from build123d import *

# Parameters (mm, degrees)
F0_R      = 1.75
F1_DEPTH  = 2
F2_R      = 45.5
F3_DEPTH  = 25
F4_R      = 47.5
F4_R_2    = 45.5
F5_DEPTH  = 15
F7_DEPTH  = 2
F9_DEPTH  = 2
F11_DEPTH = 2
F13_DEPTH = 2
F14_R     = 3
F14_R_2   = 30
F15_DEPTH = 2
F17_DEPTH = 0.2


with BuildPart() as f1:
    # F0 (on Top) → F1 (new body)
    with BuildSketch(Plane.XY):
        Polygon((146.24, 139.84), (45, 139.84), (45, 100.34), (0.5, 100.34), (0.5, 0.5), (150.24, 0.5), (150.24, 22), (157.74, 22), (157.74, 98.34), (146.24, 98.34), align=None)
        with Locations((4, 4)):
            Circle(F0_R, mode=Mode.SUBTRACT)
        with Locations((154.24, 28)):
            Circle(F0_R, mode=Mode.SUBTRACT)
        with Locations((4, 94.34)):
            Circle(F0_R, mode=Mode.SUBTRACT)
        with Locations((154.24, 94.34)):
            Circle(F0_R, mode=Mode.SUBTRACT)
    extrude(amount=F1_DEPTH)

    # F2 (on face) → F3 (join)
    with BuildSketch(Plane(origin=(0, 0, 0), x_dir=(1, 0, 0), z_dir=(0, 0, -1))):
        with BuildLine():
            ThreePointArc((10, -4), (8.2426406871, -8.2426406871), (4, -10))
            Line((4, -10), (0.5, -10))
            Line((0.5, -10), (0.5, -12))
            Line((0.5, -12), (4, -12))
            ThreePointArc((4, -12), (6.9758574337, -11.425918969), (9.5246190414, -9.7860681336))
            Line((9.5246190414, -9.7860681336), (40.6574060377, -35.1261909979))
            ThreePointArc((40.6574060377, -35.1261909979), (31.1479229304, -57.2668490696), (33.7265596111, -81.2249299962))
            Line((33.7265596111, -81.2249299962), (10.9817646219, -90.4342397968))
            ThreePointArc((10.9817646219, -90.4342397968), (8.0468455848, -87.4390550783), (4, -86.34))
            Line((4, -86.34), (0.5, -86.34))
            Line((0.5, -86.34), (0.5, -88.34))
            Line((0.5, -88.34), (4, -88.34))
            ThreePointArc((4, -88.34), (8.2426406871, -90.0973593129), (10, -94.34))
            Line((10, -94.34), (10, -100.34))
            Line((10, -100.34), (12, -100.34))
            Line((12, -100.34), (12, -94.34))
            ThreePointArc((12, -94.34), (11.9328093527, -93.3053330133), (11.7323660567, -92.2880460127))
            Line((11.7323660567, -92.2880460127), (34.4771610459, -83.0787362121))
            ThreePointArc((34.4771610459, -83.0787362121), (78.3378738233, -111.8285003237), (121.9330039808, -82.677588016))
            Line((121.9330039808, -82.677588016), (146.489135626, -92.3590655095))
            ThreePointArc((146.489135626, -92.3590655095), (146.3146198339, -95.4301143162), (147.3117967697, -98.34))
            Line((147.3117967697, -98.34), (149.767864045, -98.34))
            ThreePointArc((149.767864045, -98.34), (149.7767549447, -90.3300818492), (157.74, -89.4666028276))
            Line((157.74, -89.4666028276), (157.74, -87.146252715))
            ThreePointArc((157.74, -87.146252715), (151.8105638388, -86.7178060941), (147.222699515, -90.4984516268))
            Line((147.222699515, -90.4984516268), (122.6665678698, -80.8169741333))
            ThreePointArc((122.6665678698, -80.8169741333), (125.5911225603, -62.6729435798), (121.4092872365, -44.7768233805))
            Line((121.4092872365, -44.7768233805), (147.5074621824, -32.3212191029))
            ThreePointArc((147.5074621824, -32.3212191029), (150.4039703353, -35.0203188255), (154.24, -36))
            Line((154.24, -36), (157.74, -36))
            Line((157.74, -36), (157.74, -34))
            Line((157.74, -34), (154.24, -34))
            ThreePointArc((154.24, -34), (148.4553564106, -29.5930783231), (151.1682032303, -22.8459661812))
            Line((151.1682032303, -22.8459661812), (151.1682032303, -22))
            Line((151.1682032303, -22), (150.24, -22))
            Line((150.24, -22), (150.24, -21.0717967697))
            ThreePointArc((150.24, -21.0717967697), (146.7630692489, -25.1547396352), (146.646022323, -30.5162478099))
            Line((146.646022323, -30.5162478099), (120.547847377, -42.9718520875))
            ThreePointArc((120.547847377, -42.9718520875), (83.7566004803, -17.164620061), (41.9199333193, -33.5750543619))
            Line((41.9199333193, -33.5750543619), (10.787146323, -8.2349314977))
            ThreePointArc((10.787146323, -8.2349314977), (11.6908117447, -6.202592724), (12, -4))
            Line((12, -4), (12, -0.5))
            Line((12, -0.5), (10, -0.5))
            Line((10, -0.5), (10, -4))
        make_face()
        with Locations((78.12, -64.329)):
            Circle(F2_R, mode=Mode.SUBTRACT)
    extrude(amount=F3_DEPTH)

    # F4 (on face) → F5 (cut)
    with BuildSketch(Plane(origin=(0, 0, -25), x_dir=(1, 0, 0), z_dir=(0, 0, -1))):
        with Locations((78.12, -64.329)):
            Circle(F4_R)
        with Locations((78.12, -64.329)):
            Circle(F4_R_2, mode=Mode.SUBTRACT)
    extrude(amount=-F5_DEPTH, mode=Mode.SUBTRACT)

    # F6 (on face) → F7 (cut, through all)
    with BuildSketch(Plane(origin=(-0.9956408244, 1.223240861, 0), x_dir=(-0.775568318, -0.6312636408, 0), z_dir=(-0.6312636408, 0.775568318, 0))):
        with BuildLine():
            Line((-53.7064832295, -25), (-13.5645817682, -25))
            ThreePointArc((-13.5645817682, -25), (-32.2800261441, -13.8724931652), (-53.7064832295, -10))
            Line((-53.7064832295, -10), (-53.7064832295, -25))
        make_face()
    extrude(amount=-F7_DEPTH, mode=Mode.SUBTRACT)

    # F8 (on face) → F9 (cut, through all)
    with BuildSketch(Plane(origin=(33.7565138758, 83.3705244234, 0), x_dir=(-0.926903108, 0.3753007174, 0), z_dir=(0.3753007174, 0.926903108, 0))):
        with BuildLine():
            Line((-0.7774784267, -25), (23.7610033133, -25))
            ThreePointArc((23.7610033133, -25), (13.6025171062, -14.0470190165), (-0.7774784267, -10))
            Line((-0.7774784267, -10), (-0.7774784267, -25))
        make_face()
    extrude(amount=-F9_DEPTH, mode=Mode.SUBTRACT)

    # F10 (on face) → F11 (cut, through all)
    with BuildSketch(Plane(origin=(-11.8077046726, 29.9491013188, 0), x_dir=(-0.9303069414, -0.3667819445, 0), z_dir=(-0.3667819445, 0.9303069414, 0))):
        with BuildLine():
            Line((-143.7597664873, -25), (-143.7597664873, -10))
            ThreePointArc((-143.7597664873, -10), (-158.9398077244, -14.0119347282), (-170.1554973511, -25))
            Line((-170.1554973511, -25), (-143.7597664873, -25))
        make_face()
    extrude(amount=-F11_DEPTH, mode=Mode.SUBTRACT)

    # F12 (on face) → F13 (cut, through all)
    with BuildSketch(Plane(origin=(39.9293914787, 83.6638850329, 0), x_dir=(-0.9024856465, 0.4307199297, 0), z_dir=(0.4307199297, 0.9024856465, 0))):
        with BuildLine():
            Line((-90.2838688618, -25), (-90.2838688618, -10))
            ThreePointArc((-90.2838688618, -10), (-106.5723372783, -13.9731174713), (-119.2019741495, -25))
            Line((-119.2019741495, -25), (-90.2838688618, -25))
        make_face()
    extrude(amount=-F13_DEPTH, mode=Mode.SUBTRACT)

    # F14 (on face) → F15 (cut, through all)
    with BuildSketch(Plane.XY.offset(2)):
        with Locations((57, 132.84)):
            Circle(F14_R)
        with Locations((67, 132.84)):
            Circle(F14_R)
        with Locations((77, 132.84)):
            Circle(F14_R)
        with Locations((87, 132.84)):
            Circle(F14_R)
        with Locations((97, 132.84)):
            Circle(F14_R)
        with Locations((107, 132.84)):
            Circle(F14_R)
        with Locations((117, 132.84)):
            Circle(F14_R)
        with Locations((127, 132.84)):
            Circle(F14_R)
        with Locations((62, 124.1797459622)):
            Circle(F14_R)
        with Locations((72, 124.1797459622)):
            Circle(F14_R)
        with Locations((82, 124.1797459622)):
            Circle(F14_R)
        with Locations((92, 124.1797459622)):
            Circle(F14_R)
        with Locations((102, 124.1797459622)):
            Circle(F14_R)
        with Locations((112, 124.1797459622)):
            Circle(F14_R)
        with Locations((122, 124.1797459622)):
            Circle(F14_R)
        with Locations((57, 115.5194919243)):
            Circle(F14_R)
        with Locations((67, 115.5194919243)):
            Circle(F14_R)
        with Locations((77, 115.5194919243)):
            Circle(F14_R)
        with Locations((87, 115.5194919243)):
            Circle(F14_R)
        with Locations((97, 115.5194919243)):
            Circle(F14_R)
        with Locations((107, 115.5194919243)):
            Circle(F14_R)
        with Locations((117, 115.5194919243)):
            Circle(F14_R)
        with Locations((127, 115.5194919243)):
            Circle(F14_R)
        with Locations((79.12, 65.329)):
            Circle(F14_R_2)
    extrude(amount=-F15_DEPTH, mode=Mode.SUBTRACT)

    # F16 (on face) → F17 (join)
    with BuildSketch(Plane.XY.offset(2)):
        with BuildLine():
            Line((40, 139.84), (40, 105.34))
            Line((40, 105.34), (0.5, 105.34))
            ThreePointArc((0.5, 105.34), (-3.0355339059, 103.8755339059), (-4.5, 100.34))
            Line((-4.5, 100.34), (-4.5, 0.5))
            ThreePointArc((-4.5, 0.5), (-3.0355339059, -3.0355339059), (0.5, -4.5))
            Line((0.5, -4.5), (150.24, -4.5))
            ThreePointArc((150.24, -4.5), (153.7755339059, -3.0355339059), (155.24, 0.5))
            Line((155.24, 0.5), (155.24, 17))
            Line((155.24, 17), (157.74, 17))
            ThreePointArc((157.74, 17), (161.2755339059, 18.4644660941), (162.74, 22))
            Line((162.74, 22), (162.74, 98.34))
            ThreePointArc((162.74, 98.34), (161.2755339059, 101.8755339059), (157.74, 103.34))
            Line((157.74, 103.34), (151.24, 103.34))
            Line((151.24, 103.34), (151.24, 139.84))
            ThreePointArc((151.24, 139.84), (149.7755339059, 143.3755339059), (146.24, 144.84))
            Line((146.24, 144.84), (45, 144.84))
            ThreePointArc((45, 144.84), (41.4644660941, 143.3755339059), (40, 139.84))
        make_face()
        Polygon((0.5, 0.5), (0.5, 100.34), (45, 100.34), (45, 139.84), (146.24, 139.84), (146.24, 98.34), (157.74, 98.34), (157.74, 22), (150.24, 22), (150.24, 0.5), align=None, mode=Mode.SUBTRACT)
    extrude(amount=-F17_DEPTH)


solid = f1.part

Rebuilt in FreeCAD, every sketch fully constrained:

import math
import FreeCAD as App
import Part
import Sketcher

V = App.Vector


def add_polygon(sketch, points):
    """Adds a closed chain of lines whose ends are joined by coincident constraints."""
    first, n = sketch.GeometryCount, len(points)
    for a, b in zip(points, points[1:] + points[:1]):
        sketch.addGeometry(Part.LineSegment(App.Vector(*a, 0), App.Vector(*b, 0)), False)
    for i in range(n):
        sketch.addConstraint(Sketcher.Constraint("Coincident", first + i, 2, first + (i + 1) % n, 1))

doc = App.newDocument("Part")
body = doc.addObject("PartDesign::Body", "Body")

# Sketch on XY plane
sketch1 = doc.addObject("Sketcher::SketchObject", "Sketch")
body.addObject(sketch1)
sketch1.AttachmentSupport = (doc.XY_Plane, [""])
sketch1.MapMode = "FlatFace"
add_polygon(sketch1, [(146.24, 139.84), (45, 139.84), (45, 100.34), (0.5, 100.34), (0.5, 0.5), (150.24, 0.5), (150.24, 22), (157.74, 22), (157.74, 98.34), (146.24, 98.34)])  # lines 0-9
sketch1.addGeometry(Part.Circle(V(4, 4, 0), V(0, 0, 1), 1.75), False)  # 10
sketch1.addGeometry(Part.Circle(V(154.24, 28, 0), V(0, 0, 1), 1.75), False)  # 11
sketch1.addGeometry(Part.Circle(V(4, 94.34, 0), V(0, 0, 1), 1.75), False)  # 12
sketch1.addGeometry(Part.Circle(V(154.24, 94.34, 0), V(0, 0, 1), 1.75), False)  # 13
sketch1.addConstraint(Sketcher.Constraint("Horizontal", 0))
sketch1.addConstraint(Sketcher.Constraint("Vertical", 1))
sketch1.addConstraint(Sketcher.Constraint("Horizontal", 2))
sketch1.addConstraint(Sketcher.Constraint("Vertical", 3))
sketch1.addConstraint(Sketcher.Constraint("Horizontal", 4))
sketch1.addConstraint(Sketcher.Constraint("Vertical", 5))
sketch1.addConstraint(Sketcher.Constraint("Horizontal", 6))
sketch1.addConstraint(Sketcher.Constraint("Vertical", 7))
sketch1.addConstraint(Sketcher.Constraint("Horizontal", 8))
sketch1.addConstraint(Sketcher.Constraint("Vertical", 9))
sketch1.addConstraint(Sketcher.Constraint("Equal", 10, 11))
sketch1.addConstraint(Sketcher.Constraint("Equal", 11, 12))
sketch1.addConstraint(Sketcher.Constraint("Equal", 12, 13))
sketch1.addConstraint(Sketcher.Constraint("Horizontal", 12, 3, 13, 3))
sketch1.addConstraint(Sketcher.Constraint("Vertical", 10, 3, 12, 3))
sketch1.addConstraint(Sketcher.Constraint("Vertical", 11, 3, 13, 3))
sketch1.addConstraint(Sketcher.Constraint("Diameter", 10, 3.5))
sketch1.addConstraint(Sketcher.Constraint("DistanceX", 2, 2, 2, 1, 44.5))
sketch1.addConstraint(Sketcher.Constraint("DistanceX", 6, 1, 6, 2, 7.5))
sketch1.addConstraint(Sketcher.Constraint("DistanceX", 8, 2, 8, 1, 11.5))
sketch1.addConstraint(Sketcher.Constraint("DistanceY", 1, 2, 1, 1, 39.5))
sketch1.addConstraint(Sketcher.Constraint("DistanceY", 5, 1, 5, 2, 21.5))
sketch1.addConstraint(Sketcher.Constraint("DistanceY", 9, 1, 9, 2, 41.5))
sketch1.addConstraint(Sketcher.Constraint("DistanceX", -1, 1, 10, 3, 4.0))
sketch1.addConstraint(Sketcher.Constraint("DistanceY", -1, 1, 10, 3, 4.0))
sketch1.addConstraint(Sketcher.Constraint("DistanceY", -1, 1, 11, 3, 28.0))
sketch1.addConstraint(Sketcher.Constraint("DistanceX", -1, 1, 0, 2, 45.0))
sketch1.addConstraint(Sketcher.Constraint("DistanceY", -1, 1, 5, 2, 22.0))
sketch1.addConstraint(Sketcher.Constraint("DistanceY", 12, 3, 1, 2, 6.0))
sketch1.addConstraint(Sketcher.Constraint("DistanceX", 4, 2, 11, 3, 4.0))
sketch1.addConstraint(Sketcher.Constraint("DistanceX", 0, 2, 0, 1, 101.24))
sketch1.addConstraint(Sketcher.Constraint("DistanceY", 3, 2, 3, 1, 99.84))
pad1 = doc.addObject("PartDesign::Pad", "Pad")
body.addObject(pad1)
pad1.Profile = sketch1
pad1.Length = 2

# Sketch on XY plane
sketch2 = doc.addObject("Sketcher::SketchObject", "Sketch001")
body.addObject(sketch2)
sketch2.AttachmentSupport = (doc.XY_Plane, [""])
sketch2.MapMode = "FlatFace"
sketch2.addGeometry(Part.ArcOfCircle(Part.Circle(V(4, 4, 0), V(0, 0, 1), 6), math.radians(0), math.radians(90)), False)
sketch2.addGeometry(Part.LineSegment(V(4, 10, 0), V(0.5, 10, 0)), False)
sketch2.addGeometry(Part.LineSegment(V(0.5, 10, 0), V(0.5, 12, 0)), False)
sketch2.addGeometry(Part.LineSegment(V(0.5, 12, 0), V(4, 12, 0)), False)
sketch2.addGeometry(Part.ArcOfCircle(Part.Circle(V(4, 4, 0), V(0, 0, 1), 8), math.radians(46.324169), math.radians(90)), False)
sketch2.addGeometry(Part.LineSegment(V(9.524619, 9.786068, 0), V(40.657406, 35.126191, 0)), False)
sketch2.addGeometry(Part.ArcOfCircle(Part.Circle(V(78.12, 64.329, 0), V(0, 0, 1), 47.5), math.radians(159.163416), math.radians(217.937097)), False)
sketch2.addGeometry(Part.LineSegment(V(33.72656, 81.22493, 0), V(10.981765, 90.43424, 0)), False)
sketch2.addGeometry(Part.ArcOfCircle(Part.Circle(V(4, 94.34, 0), V(0, 0, 1), 8), math.radians(-90), math.radians(-29.223656)), False)
sketch2.addGeometry(Part.LineSegment(V(4, 86.34, 0), V(0.5, 86.34, 0)), False)
sketch2.addGeometry(Part.LineSegment(V(0.5, 86.34, 0), V(0.5, 88.34, 0)), False)
sketch2.addGeometry(Part.LineSegment(V(0.5, 88.34, 0), V(4, 88.34, 0)), False)
sketch2.addGeometry(Part.ArcOfCircle(Part.Circle(V(4, 94.34, 0), V(0, 0, 1), 6), math.radians(-90), math.radians(0)), False)
sketch2.addGeometry(Part.LineSegment(V(10, 94.34, 0), V(10, 100.34, 0)), False)
sketch2.addGeometry(Part.LineSegment(V(10, 100.34, 0), V(12, 100.34, 0)), False)
sketch2.addGeometry(Part.LineSegment(V(12, 100.34, 0), V(12, 94.34, 0)), False)
sketch2.addGeometry(Part.ArcOfCircle(Part.Circle(V(4, 94.34, 0), V(0, 0, 1), 8), math.radians(-14.862144), math.radians(0)), False)
sketch2.addGeometry(Part.LineSegment(V(11.732366, 92.288046, 0), V(34.477161, 83.078736, 0)), False)
sketch2.addGeometry(Part.ArcOfCircle(Part.Circle(V(78.12, 64.329, 0), V(0, 0, 1), 47.5), math.radians(22.723604), math.radians(156.750784)), False)
sketch2.addGeometry(Part.LineSegment(V(121.933004, 82.677588, 0), V(146.489136, 92.359066, 0)), False)
sketch2.addGeometry(Part.ArcOfCircle(Part.Circle(V(154.24, 94.34, 0), V(0, 0, 1), 8), math.radians(150), math.radians(194.336532)), False)
sketch2.addGeometry(Part.LineSegment(V(147.311797, 98.34, 0), V(149.767864, 98.34, 0)), False)
sketch2.addGeometry(Part.ArcOfCircle(Part.Circle(V(154.24, 94.34, 0), V(0, 0, 1), 6), math.radians(138.189685), math.radians(305.685335)), False)
sketch2.addGeometry(Part.LineSegment(V(157.74, 89.466603, 0), V(157.74, 87.146253, 0)), False)
sketch2.addGeometry(Part.ArcOfCircle(Part.Circle(V(154.24, 94.34, 0), V(0, 0, 1), 8), math.radians(-151.301956), math.radians(-64.05552)), False)
sketch2.addGeometry(Part.LineSegment(V(147.2227, 90.498452, 0), V(122.666568, 80.816974, 0)), False)
sketch2.addGeometry(Part.ArcOfCircle(Part.Circle(V(78.12, 64.329, 0), V(0, 0, 1), 47.5), math.radians(-24.306941), math.radians(20.310972)), False)
sketch2.addGeometry(Part.LineSegment(V(121.409287, 44.776823, 0), V(147.507462, 32.321219, 0)), False)
sketch2.addGeometry(Part.ArcOfCircle(Part.Circle(V(154.24, 28, 0), V(0, 0, 1), 8), math.radians(90), math.radians(147.305987)), False)
sketch2.addGeometry(Part.LineSegment(V(154.24, 36, 0), V(157.74, 36, 0)), False)
sketch2.addGeometry(Part.LineSegment(V(157.74, 36, 0), V(157.74, 34, 0)), False)
sketch2.addGeometry(Part.LineSegment(V(157.74, 34, 0), V(154.24, 34, 0)), False)
sketch2.addGeometry(Part.ArcOfCircle(Part.Circle(V(154.24, 28, 0), V(0, 0, 1), 6), math.radians(90), math.radians(239.205118)), False)
sketch2.addGeometry(Part.LineSegment(V(151.168203, 22.845966, 0), V(151.168203, 22, 0)), False)
sketch2.addGeometry(Part.LineSegment(V(151.168203, 22, 0), V(150.24, 22, 0)), False)
sketch2.addGeometry(Part.LineSegment(V(150.24, 22, 0), V(150.24, 21.071797, 0)), False)
sketch2.addGeometry(Part.ArcOfCircle(Part.Circle(V(154.24, 28, 0), V(0, 0, 1), 8), math.radians(161.667498), math.radians(240)), False)
sketch2.addGeometry(Part.LineSegment(V(146.646022, 30.516248, 0), V(120.547847, 42.971852, 0)), False)
sketch2.addGeometry(Part.ArcOfCircle(Part.Circle(V(78.12, 64.329, 0), V(0, 0, 1), 47.5), math.radians(-139.650271), math.radians(-26.719573)), False)
sketch2.addGeometry(Part.LineSegment(V(41.919933, 33.575054, 0), V(10.787146, 8.234931, 0)), False)
sketch2.addGeometry(Part.ArcOfCircle(Part.Circle(V(4, 4, 0), V(0, 0, 1), 8), math.radians(0), math.radians(31.962658)), False)
sketch2.addGeometry(Part.LineSegment(V(12, 4, 0), V(12, 0.5, 0)), False)
sketch2.addGeometry(Part.LineSegment(V(12, 0.5, 0), V(10, 0.5, 0)), False)
sketch2.addGeometry(Part.LineSegment(V(10, 0.5, 0), V(10, 4, 0)), False)
sketch2.addGeometry(Part.Circle(V(78.12, 64.329, 0), V(0, 0, 1), 45.5), False)
sketch2.addConstraint(Sketcher.Constraint("Coincident", 0, 2, 1, 1))
sketch2.addConstraint(Sketcher.Constraint("Coincident", 1, 2, 2, 1))
sketch2.addConstraint(Sketcher.Constraint("Coincident", 2, 2, 3, 1))
sketch2.addConstraint(Sketcher.Constraint("Coincident", 3, 2, 4, 2))
sketch2.addConstraint(Sketcher.Constraint("Coincident", 4, 1, 5, 1))
sketch2.addConstraint(Sketcher.Constraint("Coincident", 5, 2, 6, 2))
sketch2.addConstraint(Sketcher.Constraint("Coincident", 6, 1, 7, 1))
sketch2.addConstraint(Sketcher.Constraint("Coincident", 7, 2, 8, 2))
sketch2.addConstraint(Sketcher.Constraint("Coincident", 8, 1, 9, 1))
sketch2.addConstraint(Sketcher.Constraint("Coincident", 9, 2, 10, 1))
sketch2.addConstraint(Sketcher.Constraint("Coincident", 10, 2, 11, 1))
sketch2.addConstraint(Sketcher.Constraint("Coincident", 11, 2, 12, 1))
sketch2.addConstraint(Sketcher.Constraint("Coincident", 12, 2, 13, 1))
sketch2.addConstraint(Sketcher.Constraint("Coincident", 13, 2, 14, 1))
sketch2.addConstraint(Sketcher.Constraint("Coincident", 14, 2, 15, 1))
sketch2.addConstraint(Sketcher.Constraint("Coincident", 15, 2, 16, 2))
sketch2.addConstraint(Sketcher.Constraint("Coincident", 16, 1, 17, 1))
sketch2.addConstraint(Sketcher.Constraint("Coincident", 17, 2, 18, 2))
sketch2.addConstraint(Sketcher.Constraint("Coincident", 18, 1, 19, 1))
sketch2.addConstraint(Sketcher.Constraint("Coincident", 19, 2, 20, 2))
sketch2.addConstraint(Sketcher.Constraint("Coincident", 20, 1, 21, 1))
sketch2.addConstraint(Sketcher.Constraint("Coincident", 21, 2, 22, 1))
sketch2.addConstraint(Sketcher.Constraint("Coincident", 22, 2, 23, 1))
sketch2.addConstraint(Sketcher.Constraint("Coincident", 23, 2, 24, 2))
sketch2.addConstraint(Sketcher.Constraint("Coincident", 24, 1, 25, 1))
sketch2.addConstraint(Sketcher.Constraint("Coincident", 25, 2, 26, 2))
sketch2.addConstraint(Sketcher.Constraint("Coincident", 26, 1, 27, 1))
sketch2.addConstraint(Sketcher.Constraint("Coincident", 27, 2, 28, 2))
sketch2.addConstraint(Sketcher.Constraint("Coincident", 28, 1, 29, 1))
sketch2.addConstraint(Sketcher.Constraint("Coincident", 29, 2, 30, 1))
sketch2.addConstraint(Sketcher.Constraint("Coincident", 30, 2, 31, 1))
sketch2.addConstraint(Sketcher.Constraint("Coincident", 31, 2, 32, 1))
sketch2.addConstraint(Sketcher.Constraint("Coincident", 32, 2, 33, 1))
sketch2.addConstraint(Sketcher.Constraint("Coincident", 33, 2, 34, 1))
sketch2.addConstraint(Sketcher.Constraint("Coincident", 34, 2, 35, 1))
sketch2.addConstraint(Sketcher.Constraint("Coincident", 35, 2, 36, 2))
sketch2.addConstraint(Sketcher.Constraint("Coincident", 36, 1, 37, 1))
sketch2.addConstraint(Sketcher.Constraint("Coincident", 37, 2, 38, 2))
sketch2.addConstraint(Sketcher.Constraint("Coincident", 38, 1, 39, 1))
sketch2.addConstraint(Sketcher.Constraint("Coincident", 39, 2, 40, 2))
sketch2.addConstraint(Sketcher.Constraint("Coincident", 40, 1, 41, 1))
sketch2.addConstraint(Sketcher.Constraint("Coincident", 41, 2, 42, 1))
sketch2.addConstraint(Sketcher.Constraint("Coincident", 42, 2, 43, 1))
sketch2.addConstraint(Sketcher.Constraint("Coincident", 43, 2, 0, 1))
sketch2.addConstraint(Sketcher.Constraint("Horizontal", 1))
sketch2.addConstraint(Sketcher.Constraint("Vertical", 2))
sketch2.addConstraint(Sketcher.Constraint("Horizontal", 3))
sketch2.addConstraint(Sketcher.Constraint("Horizontal", 9))
sketch2.addConstraint(Sketcher.Constraint("Vertical", 10))
sketch2.addConstraint(Sketcher.Constraint("Horizontal", 11))
sketch2.addConstraint(Sketcher.Constraint("Vertical", 13))
sketch2.addConstraint(Sketcher.Constraint("Horizontal", 14))
sketch2.addConstraint(Sketcher.Constraint("Vertical", 15))
sketch2.addConstraint(Sketcher.Constraint("Horizontal", 21))
sketch2.addConstraint(Sketcher.Constraint("Vertical", 23))
sketch2.addConstraint(Sketcher.Constraint("Horizontal", 29))
sketch2.addConstraint(Sketcher.Constraint("Vertical", 30))
sketch2.addConstraint(Sketcher.Constraint("Horizontal", 31))
sketch2.addConstraint(Sketcher.Constraint("Vertical", 33))
sketch2.addConstraint(Sketcher.Constraint("Horizontal", 34))
sketch2.addConstraint(Sketcher.Constraint("Vertical", 35))
sketch2.addConstraint(Sketcher.Constraint("Vertical", 41))
sketch2.addConstraint(Sketcher.Constraint("Horizontal", 42))
sketch2.addConstraint(Sketcher.Constraint("Vertical", 43))
sketch2.addConstraint(Sketcher.Constraint("Coincident", 4, 3, 0, 3))
sketch2.addConstraint(Sketcher.Constraint("Coincident", 12, 3, 8, 3))
sketch2.addConstraint(Sketcher.Constraint("Coincident", 16, 3, 8, 3))
sketch2.addConstraint(Sketcher.Constraint("Coincident", 18, 3, 6, 3))
sketch2.addConstraint(Sketcher.Constraint("Coincident", 22, 3, 20, 3))
sketch2.addConstraint(Sketcher.Constraint("Coincident", 24, 3, 20, 3))
sketch2.addConstraint(Sketcher.Constraint("Coincident", 26, 3, 6, 3))
sketch2.addConstraint(Sketcher.Constraint("Coincident", 32, 3, 28, 3))
sketch2.addConstraint(Sketcher.Constraint("Coincident", 36, 3, 28, 3))
sketch2.addConstraint(Sketcher.Constraint("Coincident", 38, 3, 6, 3))
sketch2.addConstraint(Sketcher.Constraint("Coincident", 40, 3, 0, 3))
sketch2.addConstraint(Sketcher.Constraint("Coincident", 44, 3, 6, 3))
sketch2.addConstraint(Sketcher.Constraint("Diameter", 44, 91.0))
sketch2.addConstraint(Sketcher.Constraint("Radius", 0, 6.0))
sketch2.addConstraint(Sketcher.Constraint("Radius", 4, 8.0))
sketch2.addConstraint(Sketcher.Constraint("Radius", 8, 8.0))
sketch2.addConstraint(Sketcher.Constraint("Radius", 12, 6.0))
sketch2.addConstraint(Sketcher.Constraint("Radius", 16, 8.0))
sketch2.addConstraint(Sketcher.Constraint("Radius", 20, 8.0))
sketch2.addConstraint(Sketcher.Constraint("Radius", 22, 6.0))
sketch2.addConstraint(Sketcher.Constraint("Radius", 24, 8.0))
sketch2.addConstraint(Sketcher.Constraint("Radius", 28, 8.0))
sketch2.addConstraint(Sketcher.Constraint("Radius", 32, 6.0))
sketch2.addConstraint(Sketcher.Constraint("Radius", 36, 8.0))
sketch2.addConstraint(Sketcher.Constraint("Radius", 40, 8.0))
sketch2.addConstraint(Sketcher.Constraint("Radius", 6, 47.5))
sketch2.addConstraint(Sketcher.Constraint("Radius", 18, 47.5))
sketch2.addConstraint(Sketcher.Constraint("Radius", 26, 47.5))
sketch2.addConstraint(Sketcher.Constraint("Radius", 38, 47.5))
sketch2.addConstraint(Sketcher.Constraint("DistanceY", 13, 1, 13, 2, 6.0))
sketch2.addConstraint(Sketcher.Constraint("DistanceY", 15, 2, 15, 1, 6.0))
sketch2.addConstraint(Sketcher.Constraint("DistanceX", 1, 2, 1, 1, 3.5))
sketch2.addConstraint(Sketcher.Constraint("DistanceX", 3, 1, 3, 2, 3.5))
sketch2.addConstraint(Sketcher.Constraint("DistanceX", 9, 2, 9, 1, 3.5))
sketch2.addConstraint(Sketcher.Constraint("DistanceX", 11, 1, 11, 2, 3.5))
sketch2.addConstraint(Sketcher.Constraint("DistanceX", 29, 1, 29, 2, 3.5))
sketch2.addConstraint(Sketcher.Constraint("DistanceX", 31, 2, 31, 1, 3.5))
sketch2.addConstraint(Sketcher.Constraint("DistanceY", 41, 2, 41, 1, 3.5))
sketch2.addConstraint(Sketcher.Constraint("DistanceY", 43, 1, 43, 2, 3.5))
sketch2.addConstraint(Sketcher.Constraint("DistanceX", -1, 1, 0, 3, 4.0))
sketch2.addConstraint(Sketcher.Constraint("DistanceY", -1, 1, 0, 3, 4.0))
sketch2.addConstraint(Sketcher.Constraint("DistanceX", -1, 1, 8, 3, 4.0))
sketch2.addConstraint(Sketcher.Constraint("DistanceY", -1, 1, 28, 3, 28.0))
sketch2.addConstraint(Sketcher.Constraint("DistanceX", -1, 1, 0, 2, 4.0))
sketch2.addConstraint(Sketcher.Constraint("DistanceX", -1, 1, 8, 1, 4.0))
sketch2.addConstraint(Sketcher.Constraint("DistanceY", -1, 1, 33, 2, 22.0))
sketch2.addConstraint(Sketcher.Constraint("DistanceY", -1, 1, 40, 1, 4.0))
sketch2.addConstraint(Sketcher.Constraint("DistanceX", -1, 1, 6, 3, 78.12))
sketch2.addConstraint(Sketcher.Constraint("DistanceY", -1, 1, 8, 3, 94.34))
sketch2.addConstraint(Sketcher.Constraint("DistanceX", -1, 1, 20, 3, 154.24))
sketch2.addConstraint(Sketcher.Constraint("DistanceY", -1, 1, 20, 3, 94.34))
sketch2.addConstraint(Sketcher.Constraint("DistanceX", -1, 1, 28, 3, 154.24))
sketch2.addConstraint(Sketcher.Constraint("DistanceY", -1, 1, 12, 2, 94.34))
sketch2.addConstraint(Sketcher.Constraint("DistanceY", -1, 1, 20, 1, 98.34))
sketch2.addConstraint(Sketcher.Constraint("DistanceX", -1, 1, 22, 2, 157.74))
sketch2.addConstraint(Sketcher.Constraint("DistanceX", -1, 1, 28, 1, 154.24))
sketch2.addConstraint(Sketcher.Constraint("DistanceX", -1, 1, 34, 2, 150.24))
sketch2.addConstraint(Sketcher.Constraint("DistanceY", -1, 1, 6, 3, 64.329))
sketch2.addConstraint(Sketcher.Constraint("Distance", 5, 40.141901))
sketch2.addConstraint(Sketcher.Constraint("Distance", 39, 40.141901))
sketch2.addConstraint(Sketcher.Constraint("DistanceX", -1, 1, 24, 1, 147.2227))
sketch2.addConstraint(Sketcher.Constraint("Distance", 7, 24.538482))
sketch2.addConstraint(Sketcher.Constraint("Distance", 17, 24.538482))
sketch2.addConstraint(Sketcher.Constraint("Distance", 19, 26.395731))
sketch2.addConstraint(Sketcher.Constraint("Distance", 25, 26.395731))
sketch2.addConstraint(Sketcher.Constraint("DistanceX", 34, 2, 34, 1, 0.928203))
sketch2.addConstraint(Sketcher.Constraint("DistanceX", -1, 1, 4, 1, 9.524619))
sketch2.addConstraint(Sketcher.Constraint("DistanceX", -1, 1, 6, 1, 33.72656))
sketch2.addConstraint(Sketcher.Constraint("DistanceX", -1, 1, 17, 2, 34.477161))
sketch2.addConstraint(Sketcher.Constraint("DistanceY", -1, 1, 18, 1, 82.677588))
sketch2.addConstraint(Sketcher.Constraint("DistanceY", -1, 1, 27, 2, 32.321219))
sketch2.addConstraint(Sketcher.Constraint("DistanceY", -1, 1, 39, 2, 8.234931))
sketch2.addConstraint(Sketcher.Constraint("Distance", 27, 28.918105))
sketch2.addConstraint(Sketcher.Constraint("Distance", 37, 28.918105))
sketch2.addConstraint(Sketcher.Constraint("DistanceX", -1, 1, 36, 1, 146.646022))
pad2 = doc.addObject("PartDesign::Pad", "Pad001")
body.addObject(pad2)
pad2.Profile = sketch2
pad2.Length = 25
pad2.Reversed = True

# Sketch on XY plane
sketch3 = doc.addObject("Sketcher::SketchObject", "Sketch002")
body.addObject(sketch3)
sketch3.AttachmentSupport = (doc.XY_Plane, [""])
sketch3.MapMode = "FlatFace"
sketch3.AttachmentOffset = App.Placement(V(0, 0, -25), App.Rotation())
sketch3.addGeometry(Part.Circle(V(78.12, 64.329, 0), V(0, 0, 1), 47.5), False)
sketch3.addGeometry(Part.Circle(V(78.12, 64.329, 0), V(0, 0, 1), 45.5), False)
sketch3.addConstraint(Sketcher.Constraint("Coincident", 1, 3, 0, 3))
sketch3.addConstraint(Sketcher.Constraint("Diameter", 0, 95.0))
sketch3.addConstraint(Sketcher.Constraint("Diameter", 1, 91.0))
sketch3.addConstraint(Sketcher.Constraint("DistanceX", -1, 1, 0, 3, 78.12))
sketch3.addConstraint(Sketcher.Constraint("DistanceY", -1, 1, 0, 3, 64.329))
pocket1 = doc.addObject("PartDesign::Pocket", "Pocket")
body.addObject(pocket1)
pocket1.Profile = sketch3
pocket1.Length = 15
pocket1.Reversed = True

# Sketch on an angled plane
sketch4 = doc.addObject("Sketcher::SketchObject", "Sketch003")
body.addObject(sketch4)
sketch4.Placement = App.Placement(V(-0.995641, 1.223241, 0), App.Rotation(V(-0.775568318, -0.631263641, 0), V(0, 0, 1), V(-0.631263641, 0.775568318, 0), "ZXY"))
sketch4.addGeometry(Part.LineSegment(V(-53.706483, -25, 0), V(-13.564582, -25, 0)), False)
sketch4.addGeometry(Part.ArcOfCircle(Part.Circle(V(-53.706483, -71.212408, 0), V(0, 0, 1), 61.212408), math.radians(49.021145), math.radians(90)), False)
sketch4.addGeometry(Part.LineSegment(V(-53.706483, -10, 0), V(-53.706483, -25, 0)), False)
sketch4.addConstraint(Sketcher.Constraint("Coincident", 0, 2, 1, 1))
sketch4.addConstraint(Sketcher.Constraint("Coincident", 1, 2, 2, 1))
sketch4.addConstraint(Sketcher.Constraint("Coincident", 2, 2, 0, 1))
sketch4.addConstraint(Sketcher.Constraint("Horizontal", 0))
sketch4.addConstraint(Sketcher.Constraint("Vertical", 2))
sketch4.addConstraint(Sketcher.Constraint("DistanceY", 2, 2, 2, 1, 15.0))
sketch4.addConstraint(Sketcher.Constraint("DistanceY", 0, 2, -1, 1, 25.0))
sketch4.addConstraint(Sketcher.Constraint("Radius", 1, 61.212408))
sketch4.addConstraint(Sketcher.Constraint("DistanceX", 0, 1, 0, 2, 40.141901))
sketch4.addConstraint(Sketcher.Constraint("DistanceX", 0, 2, -1, 1, 13.564582))
pocket2 = doc.addObject("PartDesign::Pocket", "Pocket001")
body.addObject(pocket2)
pocket2.Profile = sketch4
pocket2.Type = "ThroughAll"

# Sketch on an angled plane
sketch5 = doc.addObject("Sketcher::SketchObject", "Sketch004")
body.addObject(sketch5)
sketch5.Placement = App.Placement(V(33.756514, 83.370524, 0), App.Rotation(V(-0.926903108, 0.375300717, 0), V(0, 0, 1), V(0.375300717, 0.926903108, 0), "ZXY"))
sketch5.addGeometry(Part.LineSegment(V(-0.777478, -25, 0), V(23.761003, -25, 0)), False)
sketch5.addGeometry(Part.ArcOfCircle(Part.Circle(V(-0.777478, -37.571236, 0), V(0, 0, 1), 27.571236), math.radians(27.126382), math.radians(90)), False)
sketch5.addGeometry(Part.LineSegment(V(-0.777478, -10, 0), V(-0.777478, -25, 0)), False)
sketch5.addConstraint(Sketcher.Constraint("Coincident", 0, 2, 1, 1))
sketch5.addConstraint(Sketcher.Constraint("Coincident", 1, 2, 2, 1))
sketch5.addConstraint(Sketcher.Constraint("Coincident", 2, 2, 0, 1))
sketch5.addConstraint(Sketcher.Constraint("Horizontal", 0))
sketch5.addConstraint(Sketcher.Constraint("Vertical", 2))
sketch5.addConstraint(Sketcher.Constraint("DistanceY", 2, 2, 2, 1, 15.0))
sketch5.addConstraint(Sketcher.Constraint("DistanceY", 0, 2, -1, 1, 25.0))
sketch5.addConstraint(Sketcher.Constraint("Radius", 1, 27.571236))
sketch5.addConstraint(Sketcher.Constraint("DistanceX", 0, 1, 0, 2, 24.538482))
sketch5.addConstraint(Sketcher.Constraint("DistanceX", 1, 3, -1, 1, 0.777478))
pocket3 = doc.addObject("PartDesign::Pocket", "Pocket002")
body.addObject(pocket3)
pocket3.Profile = sketch5
pocket3.Length = 2

# Sketch on an angled plane
sketch6 = doc.addObject("Sketcher::SketchObject", "Sketch005")
body.addObject(sketch6)
sketch6.Placement = App.Placement(V(-11.807705, 29.949101, 0), App.Rotation(V(-0.930306941, -0.366781944, 0), V(0, 0, 0.999999999), V(-0.366781944, 0.930306941, 0), "ZXY"))
sketch6.addGeometry(Part.LineSegment(V(-143.759766, -25, 0), V(-143.759766, -10, 0)), False)
sketch6.addGeometry(Part.ArcOfCircle(Part.Circle(V(-143.759766, -40.724487, 0), V(0, 0, 1), 30.724487), math.radians(90), math.radians(149.216862)), False)
sketch6.addGeometry(Part.LineSegment(V(-170.155497, -25, 0), V(-143.759766, -25, 0)), False)
sketch6.addConstraint(Sketcher.Constraint("Coincident", 0, 2, 1, 1))
sketch6.addConstraint(Sketcher.Constraint("Coincident", 1, 2, 2, 1))
sketch6.addConstraint(Sketcher.Constraint("Coincident", 2, 2, 0, 1))
sketch6.addConstraint(Sketcher.Constraint("Vertical", 0))
sketch6.addConstraint(Sketcher.Constraint("Horizontal", 2))
sketch6.addConstraint(Sketcher.Constraint("Vertical", 1, 3, 0, 2))
sketch6.addConstraint(Sketcher.Constraint("DistanceY", 0, 1, 0, 2, 15.0))
sketch6.addConstraint(Sketcher.Constraint("DistanceY", 0, 2, -1, 1, 10.0))
sketch6.addConstraint(Sketcher.Constraint("Radius", 1, 30.724487))
sketch6.addConstraint(Sketcher.Constraint("DistanceX", 1, 3, -1, 1, 143.759766))
pocket4 = doc.addObject("PartDesign::Pocket", "Pocket003")
body.addObject(pocket4)
pocket4.Profile = sketch6
pocket4.Length = 2

# Sketch on an angled plane
sketch7 = doc.addObject("Sketcher::SketchObject", "Sketch006")
body.addObject(sketch7)
sketch7.Placement = App.Placement(V(39.929391, 83.663885, 0), App.Rotation(V(-0.902485647, 0.43071993, 0), V(0, 0, 1.000000001), V(0.43071993, 0.902485647, 0), "ZXY"))
sketch7.addGeometry(Part.LineSegment(V(-90.283869, -25, 0), V(-90.283869, -10, 0)), False)
sketch7.addGeometry(Part.ArcOfCircle(Part.Circle(V(-90.283869, -45.375227, 0), V(0, 0, 1), 35.375227), math.radians(90), math.radians(144.832098)), False)
sketch7.addGeometry(Part.LineSegment(V(-119.201974, -25, 0), V(-90.283869, -25, 0)), False)
sketch7.addConstraint(Sketcher.Constraint("Coincident", 0, 2, 1, 1))
sketch7.addConstraint(Sketcher.Constraint("Coincident", 1, 2, 2, 1))
sketch7.addConstraint(Sketcher.Constraint("Coincident", 2, 2, 0, 1))
sketch7.addConstraint(Sketcher.Constraint("Vertical", 0))
sketch7.addConstraint(Sketcher.Constraint("Horizontal", 2))
sketch7.addConstraint(Sketcher.Constraint("Vertical", 1, 3, 0, 2))
sketch7.addConstraint(Sketcher.Constraint("DistanceY", 0, 1, 0, 2, 15.0))
sketch7.addConstraint(Sketcher.Constraint("DistanceY", 0, 2, -1, 1, 10.0))
sketch7.addConstraint(Sketcher.Constraint("Radius", 1, 35.375227))
sketch7.addConstraint(Sketcher.Constraint("DistanceX", 1, 3, -1, 1, 90.283869))
pocket5 = doc.addObject("PartDesign::Pocket", "Pocket004")
body.addObject(pocket5)
pocket5.Profile = sketch7
pocket5.Type = "ThroughAll"

# Sketch on XY plane
sketch8 = doc.addObject("Sketcher::SketchObject", "Sketch007")
body.addObject(sketch8)
sketch8.AttachmentSupport = (doc.XY_Plane, [""])
sketch8.MapMode = "FlatFace"
sketch8.AttachmentOffset = App.Placement(V(0, 0, 2), App.Rotation())
sketch8.addGeometry(Part.Circle(V(57, 132.84, 0), V(0, 0, 1), 3), False)
sketch8.addGeometry(Part.Circle(V(67, 132.84, 0), V(0, 0, 1), 3), False)
sketch8.addGeometry(Part.Circle(V(77, 132.84, 0), V(0, 0, 1), 3), False)
sketch8.addGeometry(Part.Circle(V(87, 132.84, 0), V(0, 0, 1), 3), False)
sketch8.addGeometry(Part.Circle(V(97, 132.84, 0), V(0, 0, 1), 3), False)
sketch8.addGeometry(Part.Circle(V(107, 132.84, 0), V(0, 0, 1), 3), False)
sketch8.addGeometry(Part.Circle(V(117, 132.84, 0), V(0, 0, 1), 3), False)
sketch8.addGeometry(Part.Circle(V(127, 132.84, 0), V(0, 0, 1), 3), False)
sketch8.addGeometry(Part.Circle(V(62, 124.179746, 0), V(0, 0, 1), 3), False)
sketch8.addGeometry(Part.Circle(V(72, 124.179746, 0), V(0, 0, 1), 3), False)
sketch8.addGeometry(Part.Circle(V(82, 124.179746, 0), V(0, 0, 1), 3), False)
sketch8.addGeometry(Part.Circle(V(92, 124.179746, 0), V(0, 0, 1), 3), False)
sketch8.addGeometry(Part.Circle(V(102, 124.179746, 0), V(0, 0, 1), 3), False)
sketch8.addGeometry(Part.Circle(V(112, 124.179746, 0), V(0, 0, 1), 3), False)
sketch8.addGeometry(Part.Circle(V(122, 124.179746, 0), V(0, 0, 1), 3), False)
sketch8.addGeometry(Part.Circle(V(57, 115.519492, 0), V(0, 0, 1), 3), False)
sketch8.addGeometry(Part.Circle(V(67, 115.519492, 0), V(0, 0, 1), 3), False)
sketch8.addGeometry(Part.Circle(V(77, 115.519492, 0), V(0, 0, 1), 3), False)
sketch8.addGeometry(Part.Circle(V(87, 115.519492, 0), V(0, 0, 1), 3), False)
sketch8.addGeometry(Part.Circle(V(97, 115.519492, 0), V(0, 0, 1), 3), False)
sketch8.addGeometry(Part.Circle(V(107, 115.519492, 0), V(0, 0, 1), 3), False)
sketch8.addGeometry(Part.Circle(V(117, 115.519492, 0), V(0, 0, 1), 3), False)
sketch8.addGeometry(Part.Circle(V(127, 115.519492, 0), V(0, 0, 1), 3), False)
sketch8.addGeometry(Part.Circle(V(79.12, 65.329, 0), V(0, 0, 1), 30), False)
sketch8.addConstraint(Sketcher.Constraint("Equal", 0, 1))
sketch8.addConstraint(Sketcher.Constraint("Equal", 1, 2))
sketch8.addConstraint(Sketcher.Constraint("Equal", 2, 3))
sketch8.addConstraint(Sketcher.Constraint("Equal", 3, 4))
sketch8.addConstraint(Sketcher.Constraint("Equal", 4, 5))
sketch8.addConstraint(Sketcher.Constraint("Equal", 5, 6))
sketch8.addConstraint(Sketcher.Constraint("Equal", 6, 7))
sketch8.addConstraint(Sketcher.Constraint("Equal", 7, 8))
sketch8.addConstraint(Sketcher.Constraint("Equal", 8, 9))
sketch8.addConstraint(Sketcher.Constraint("Equal", 9, 10))
sketch8.addConstraint(Sketcher.Constraint("Equal", 10, 11))
sketch8.addConstraint(Sketcher.Constraint("Equal", 11, 12))
sketch8.addConstraint(Sketcher.Constraint("Equal", 12, 13))
sketch8.addConstraint(Sketcher.Constraint("Equal", 13, 14))
sketch8.addConstraint(Sketcher.Constraint("Equal", 14, 15))
sketch8.addConstraint(Sketcher.Constraint("Equal", 15, 16))
sketch8.addConstraint(Sketcher.Constraint("Equal", 16, 17))
sketch8.addConstraint(Sketcher.Constraint("Equal", 17, 18))
sketch8.addConstraint(Sketcher.Constraint("Equal", 18, 19))
sketch8.addConstraint(Sketcher.Constraint("Equal", 19, 20))
sketch8.addConstraint(Sketcher.Constraint("Equal", 20, 21))
sketch8.addConstraint(Sketcher.Constraint("Equal", 21, 22))
sketch8.addConstraint(Sketcher.Constraint("Horizontal", 0, 3, 1, 3))
sketch8.addConstraint(Sketcher.Constraint("Horizontal", 1, 3, 2, 3))
sketch8.addConstraint(Sketcher.Constraint("Horizontal", 2, 3, 3, 3))
sketch8.addConstraint(Sketcher.Constraint("Horizontal", 3, 3, 4, 3))
sketch8.addConstraint(Sketcher.Constraint("Horizontal", 4, 3, 5, 3))
sketch8.addConstraint(Sketcher.Constraint("Horizontal", 5, 3, 6, 3))
sketch8.addConstraint(Sketcher.Constraint("Horizontal", 6, 3, 7, 3))
sketch8.addConstraint(Sketcher.Constraint("Horizontal", 8, 3, 9, 3))
sketch8.addConstraint(Sketcher.Constraint("Horizontal", 9, 3, 10, 3))
sketch8.addConstraint(Sketcher.Constraint("Horizontal", 10, 3, 11, 3))
sketch8.addConstraint(Sketcher.Constraint("Horizontal", 11, 3, 12, 3))
sketch8.addConstraint(Sketcher.Constraint("Horizontal", 12, 3, 13, 3))
sketch8.addConstraint(Sketcher.Constraint("Horizontal", 13, 3, 14, 3))
sketch8.addConstraint(Sketcher.Constraint("Horizontal", 15, 3, 16, 3))
sketch8.addConstraint(Sketcher.Constraint("Horizontal", 16, 3, 17, 3))
sketch8.addConstraint(Sketcher.Constraint("Horizontal", 17, 3, 18, 3))
sketch8.addConstraint(Sketcher.Constraint("Horizontal", 18, 3, 19, 3))
sketch8.addConstraint(Sketcher.Constraint("Horizontal", 19, 3, 20, 3))
sketch8.addConstraint(Sketcher.Constraint("Horizontal", 20, 3, 21, 3))
sketch8.addConstraint(Sketcher.Constraint("Horizontal", 21, 3, 22, 3))
sketch8.addConstraint(Sketcher.Constraint("Vertical", 0, 3, 15, 3))
sketch8.addConstraint(Sketcher.Constraint("Vertical", 1, 3, 16, 3))
sketch8.addConstraint(Sketcher.Constraint("Vertical", 2, 3, 17, 3))
sketch8.addConstraint(Sketcher.Constraint("Vertical", 3, 3, 18, 3))
sketch8.addConstraint(Sketcher.Constraint("Vertical", 4, 3, 19, 3))
sketch8.addConstraint(Sketcher.Constraint("Vertical", 5, 3, 20, 3))
sketch8.addConstraint(Sketcher.Constraint("Vertical", 6, 3, 21, 3))
sketch8.addConstraint(Sketcher.Constraint("Vertical", 7, 3, 22, 3))
sketch8.addConstraint(Sketcher.Constraint("Diameter", 0, 6.0))
sketch8.addConstraint(Sketcher.Constraint("Diameter", 23, 60.0))
sketch8.addConstraint(Sketcher.Constraint("DistanceX", -1, 1, 0, 3, 57.0))
sketch8.addConstraint(Sketcher.Constraint("DistanceX", -1, 1, 1, 3, 67.0))
sketch8.addConstraint(Sketcher.Constraint("DistanceX", -1, 1, 2, 3, 77.0))
sketch8.addConstraint(Sketcher.Constraint("DistanceX", -1, 1, 3, 3, 87.0))
sketch8.addConstraint(Sketcher.Constraint("DistanceX", -1, 1, 4, 3, 97.0))
sketch8.addConstraint(Sketcher.Constraint("DistanceX", -1, 1, 5, 3, 107.0))
sketch8.addConstraint(Sketcher.Constraint("DistanceX", -1, 1, 6, 3, 117.0))
sketch8.addConstraint(Sketcher.Constraint("DistanceX", -1, 1, 7, 3, 127.0))
sketch8.addConstraint(Sketcher.Constraint("DistanceX", -1, 1, 8, 3, 62.0))
sketch8.addConstraint(Sketcher.Constraint("DistanceX", -1, 1, 9, 3, 72.0))
sketch8.addConstraint(Sketcher.Constraint("DistanceX", -1, 1, 10, 3, 82.0))
sketch8.addConstraint(Sketcher.Constraint("DistanceX", -1, 1, 11, 3, 92.0))
sketch8.addConstraint(Sketcher.Constraint("DistanceX", -1, 1, 12, 3, 102.0))
sketch8.addConstraint(Sketcher.Constraint("DistanceX", -1, 1, 13, 3, 112.0))
sketch8.addConstraint(Sketcher.Constraint("DistanceX", -1, 1, 14, 3, 122.0))
sketch8.addConstraint(Sketcher.Constraint("DistanceY", -1, 1, 0, 3, 132.84))
sketch8.addConstraint(Sketcher.Constraint("DistanceX", -1, 1, 23, 3, 79.12))
sketch8.addConstraint(Sketcher.Constraint("DistanceY", -1, 1, 23, 3, 65.329))
sketch8.addConstraint(Sketcher.Constraint("DistanceY", -1, 1, 15, 3, 115.519492))
sketch8.addConstraint(Sketcher.Constraint("DistanceY", -1, 1, 8, 3, 124.179746))
pocket6 = doc.addObject("PartDesign::Pocket", "Pocket005")
body.addObject(pocket6)
pocket6.Profile = sketch8
pocket6.Type = "ThroughAll"

# Sketch on XY plane
sketch9 = doc.addObject("Sketcher::SketchObject", "Sketch008")
body.addObject(sketch9)
sketch9.AttachmentSupport = (doc.XY_Plane, [""])
sketch9.MapMode = "FlatFace"
sketch9.AttachmentOffset = App.Placement(V(0, 0, 2), App.Rotation())
sketch9.addGeometry(Part.LineSegment(V(40, 139.84, 0), V(40, 105.34, 0)), False)  # 0
sketch9.addGeometry(Part.LineSegment(V(40, 105.34, 0), V(0.5, 105.34, 0)), False)  # 1
sketch9.addGeometry(Part.ArcOfCircle(Part.Circle(V(0.5, 100.34, 0), V(0, 0, 1), 5), math.radians(90), math.radians(180)), False)  # 2
sketch9.addGeometry(Part.LineSegment(V(-4.5, 100.34, 0), V(-4.5, 0.5, 0)), False)  # 3
sketch9.addGeometry(Part.ArcOfCircle(Part.Circle(V(0.5, 0.5, 0), V(0, 0, 1), 5), math.radians(180), math.radians(270)), False)  # 4
sketch9.addGeometry(Part.LineSegment(V(0.5, -4.5, 0), V(150.24, -4.5, 0)), False)  # 5
sketch9.addGeometry(Part.ArcOfCircle(Part.Circle(V(150.24, 0.5, 0), V(0, 0, 1), 5), math.radians(-90), math.radians(0)), False)  # 6
sketch9.addGeometry(Part.LineSegment(V(155.24, 0.5, 0), V(155.24, 17, 0)), False)  # 7
sketch9.addGeometry(Part.LineSegment(V(155.24, 17, 0), V(157.74, 17, 0)), False)  # 8
sketch9.addGeometry(Part.ArcOfCircle(Part.Circle(V(157.74, 22, 0), V(0, 0, 1), 5), math.radians(-90), math.radians(0)), False)  # 9
sketch9.addGeometry(Part.LineSegment(V(162.74, 22, 0), V(162.74, 98.34, 0)), False)  # 10
sketch9.addGeometry(Part.ArcOfCircle(Part.Circle(V(157.74, 98.34, 0), V(0, 0, 1), 5), math.radians(0), math.radians(90)), False)  # 11
sketch9.addGeometry(Part.LineSegment(V(157.74, 103.34, 0), V(151.24, 103.34, 0)), False)  # 12
sketch9.addGeometry(Part.LineSegment(V(151.24, 103.34, 0), V(151.24, 139.84, 0)), False)  # 13
sketch9.addGeometry(Part.ArcOfCircle(Part.Circle(V(146.24, 139.84, 0), V(0, 0, 1), 5), math.radians(0), math.radians(90)), False)  # 14
sketch9.addGeometry(Part.LineSegment(V(146.24, 144.84, 0), V(45, 144.84, 0)), False)  # 15
sketch9.addGeometry(Part.ArcOfCircle(Part.Circle(V(45, 139.84, 0), V(0, 0, 1), 5), math.radians(90), math.radians(180)), False)  # 16
add_polygon(sketch9, [(150.24, 0.5), (0.5, 0.5), (0.5, 100.34), (45, 100.34), (45, 139.84), (146.24, 139.84), (146.24, 98.34), (157.74, 98.34), (157.74, 22), (150.24, 22)])  # lines 17-26
sketch9.addConstraint(Sketcher.Constraint("Coincident", 0, 2, 1, 1))
sketch9.addConstraint(Sketcher.Constraint("Tangent", 1, 2, 2, 1))
sketch9.addConstraint(Sketcher.Constraint("Tangent", 2, 2, 3, 1))
sketch9.addConstraint(Sketcher.Constraint("Tangent", 3, 2, 4, 1))
sketch9.addConstraint(Sketcher.Constraint("Tangent", 4, 2, 5, 1))
sketch9.addConstraint(Sketcher.Constraint("Tangent", 5, 2, 6, 1))
sketch9.addConstraint(Sketcher.Constraint("Tangent", 6, 2, 7, 1))
sketch9.addConstraint(Sketcher.Constraint("Coincident", 7, 2, 8, 1))
sketch9.addConstraint(Sketcher.Constraint("Tangent", 8, 2, 9, 1))
sketch9.addConstraint(Sketcher.Constraint("Tangent", 9, 2, 10, 1))
sketch9.addConstraint(Sketcher.Constraint("Tangent", 10, 2, 11, 1))
sketch9.addConstraint(Sketcher.Constraint("Tangent", 11, 2, 12, 1))
sketch9.addConstraint(Sketcher.Constraint("Coincident", 12, 2, 13, 1))
sketch9.addConstraint(Sketcher.Constraint("Tangent", 13, 2, 14, 1))
sketch9.addConstraint(Sketcher.Constraint("Tangent", 14, 2, 15, 1))
sketch9.addConstraint(Sketcher.Constraint("Tangent", 15, 2, 16, 1))
sketch9.addConstraint(Sketcher.Constraint("Tangent", 16, 2, 0, 1))
sketch9.addConstraint(Sketcher.Constraint("Vertical", 0))
sketch9.addConstraint(Sketcher.Constraint("Horizontal", 1))
sketch9.addConstraint(Sketcher.Constraint("Vertical", 3))
sketch9.addConstraint(Sketcher.Constraint("Horizontal", 5))
sketch9.addConstraint(Sketcher.Constraint("Vertical", 7))
sketch9.addConstraint(Sketcher.Constraint("Horizontal", 8))
sketch9.addConstraint(Sketcher.Constraint("Vertical", 10))
sketch9.addConstraint(Sketcher.Constraint("Horizontal", 12))
sketch9.addConstraint(Sketcher.Constraint("Vertical", 13))
sketch9.addConstraint(Sketcher.Constraint("Horizontal", 15))
sketch9.addConstraint(Sketcher.Constraint("Horizontal", 17))
sketch9.addConstraint(Sketcher.Constraint("Vertical", 18))
sketch9.addConstraint(Sketcher.Constraint("Horizontal", 19))
sketch9.addConstraint(Sketcher.Constraint("Vertical", 20))
sketch9.addConstraint(Sketcher.Constraint("Horizontal", 21))
sketch9.addConstraint(Sketcher.Constraint("Vertical", 22))
sketch9.addConstraint(Sketcher.Constraint("Horizontal", 23))
sketch9.addConstraint(Sketcher.Constraint("Vertical", 24))
sketch9.addConstraint(Sketcher.Constraint("Horizontal", 25))
sketch9.addConstraint(Sketcher.Constraint("Vertical", 26))
sketch9.addConstraint(Sketcher.Constraint("Coincident", 17, 2, 4, 3))
sketch9.addConstraint(Sketcher.Constraint("Coincident", 18, 2, 2, 3))
sketch9.addConstraint(Sketcher.Constraint("Coincident", 20, 2, 16, 3))
sketch9.addConstraint(Sketcher.Constraint("Coincident", 21, 2, 14, 3))
sketch9.addConstraint(Sketcher.Constraint("Coincident", 23, 2, 11, 3))
sketch9.addConstraint(Sketcher.Constraint("Coincident", 24, 2, 9, 3))
sketch9.addConstraint(Sketcher.Constraint("Coincident", 26, 2, 6, 3))
sketch9.addConstraint(Sketcher.Constraint("Equal", 6, 9))
sketch9.addConstraint(Sketcher.Constraint("Equal", 11, 14))
sketch9.addConstraint(Sketcher.Constraint("Equal", 1, 20))
sketch9.addConstraint(Sketcher.Constraint("Radius", 2, 5.0))
sketch9.addConstraint(Sketcher.Constraint("DistanceX", 1, 2, 1, 1, 39.5))
sketch9.addConstraint(Sketcher.Constraint("DistanceX", 8, 1, 8, 2, 2.5))
sketch9.addConstraint(Sketcher.Constraint("DistanceX", 12, 2, 12, 1, 6.5))
sketch9.addConstraint(Sketcher.Constraint("DistanceY", 7, 1, 7, 2, 16.5))
sketch9.addConstraint(Sketcher.Constraint("DistanceY", 13, 1, 13, 2, 36.5))
sketch9.addConstraint(Sketcher.Constraint("DistanceY", -1, 1, 9, 3, 22.0))
sketch9.addConstraint(Sketcher.Constraint("DistanceX", -1, 1, 16, 3, 45.0))
sketch9.addConstraint(Sketcher.Constraint("DistanceX", 5, 1, 5, 2, 149.74))
sketch9.addConstraint(Sketcher.Constraint("DistanceY", 3, 2, 3, 1, 99.84))
pad3 = doc.addObject("PartDesign::Pad", "Pad002")
body.addObject(pad3)
pad3.Profile = sketch9
pad3.Length = 0.2
pad3.Reversed = True

doc.recompute()
